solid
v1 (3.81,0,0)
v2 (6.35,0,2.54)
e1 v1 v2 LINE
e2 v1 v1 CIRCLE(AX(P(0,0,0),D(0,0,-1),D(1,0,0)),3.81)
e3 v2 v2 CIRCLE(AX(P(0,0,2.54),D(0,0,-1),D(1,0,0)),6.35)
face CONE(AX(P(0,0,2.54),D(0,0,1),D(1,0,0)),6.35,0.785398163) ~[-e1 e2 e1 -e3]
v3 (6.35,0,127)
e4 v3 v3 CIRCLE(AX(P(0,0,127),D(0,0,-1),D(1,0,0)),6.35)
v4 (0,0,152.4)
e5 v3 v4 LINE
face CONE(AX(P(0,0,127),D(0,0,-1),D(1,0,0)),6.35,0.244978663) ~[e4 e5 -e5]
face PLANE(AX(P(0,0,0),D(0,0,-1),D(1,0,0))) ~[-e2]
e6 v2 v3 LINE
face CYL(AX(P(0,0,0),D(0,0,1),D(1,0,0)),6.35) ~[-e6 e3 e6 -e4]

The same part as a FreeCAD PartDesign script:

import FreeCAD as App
import Part
import Sketcher
Q = App.Units.Quantity


def edges_at(feature, points):
    """Names of the edges that pass closest to the given points."""
    edges = feature.Shape.Edges
    near = lambda p: min(range(len(edges)), key=lambda i: edges[i].distToShape(Part.Vertex(*p))[0])
    return sorted({f"Edge{near(p) + 1}" for p in points})


def add_polygon(sketch, points):
    """Adds a closed chain of lines whose ends are joined by coincident constraints."""
    first, n = sketch.GeometryCount, len(points)
    for a, b in zip(points, points[1:] + points[:1]):
        sketch.addGeometry(Part.LineSegment(App.Vector(*a, 0), App.Vector(*b, 0)), False)
    for i in range(n):
        sketch.addConstraint(Sketcher.Constraint("Coincident", first + i, 2, first + (i + 1) % n, 1))

doc = App.newDocument("Part")
body = doc.addObject("PartDesign::Body", "Body")

# Sketch on XZ plane
sketch1 = doc.addObject("Sketcher::SketchObject", "Sketch")
body.addObject(sketch1)
sketch1.AttachmentSupport = (doc.XZ_Plane, [""])
sketch1.MapMode = "FlatFace"
add_polygon(sketch1, [(6.35, 127), (0, 152.4), (0, 0), (6.35, 0)])  # lines 0-3
sketch1.addConstraint(Sketcher.Constraint("Vertical", 1))
sketch1.addConstraint(Sketcher.Constraint("Horizontal", 2))
sketch1.addConstraint(Sketcher.Constraint("Vertical", 3))
sketch1.addConstraint(Sketcher.Constraint("Coincident", 1, 2, -1, 1))
sketch1.addConstraint(Sketcher.Constraint("DistanceY", 1, 2, 1, 1, Q("6 in")))
sketch1.addConstraint(Sketcher.Constraint("DistanceY", 3, 1, 3, 2, Q("5 in")))
sketch1.addConstraint(Sketcher.Constraint("DistanceX", 2, 1, 2, 2, Q("0.25 in")))
revolution = doc.addObject("PartDesign::Revolution", "Revolution")
body.addObject(revolution)
revolution.Profile = sketch1
revolution.ReferenceAxis = (sketch1, ["V_Axis"])
revolution.Angle = 360
doc.recompute()

chamfer = doc.addObject("PartDesign::Chamfer", "Chamfer")
body.addObject(chamfer)
chamfer.Base = (revolution, edges_at(revolution, [(-6.35, 0, 0)]))
chamfer.Size = Q("0.1 in")

doc.recompute()
